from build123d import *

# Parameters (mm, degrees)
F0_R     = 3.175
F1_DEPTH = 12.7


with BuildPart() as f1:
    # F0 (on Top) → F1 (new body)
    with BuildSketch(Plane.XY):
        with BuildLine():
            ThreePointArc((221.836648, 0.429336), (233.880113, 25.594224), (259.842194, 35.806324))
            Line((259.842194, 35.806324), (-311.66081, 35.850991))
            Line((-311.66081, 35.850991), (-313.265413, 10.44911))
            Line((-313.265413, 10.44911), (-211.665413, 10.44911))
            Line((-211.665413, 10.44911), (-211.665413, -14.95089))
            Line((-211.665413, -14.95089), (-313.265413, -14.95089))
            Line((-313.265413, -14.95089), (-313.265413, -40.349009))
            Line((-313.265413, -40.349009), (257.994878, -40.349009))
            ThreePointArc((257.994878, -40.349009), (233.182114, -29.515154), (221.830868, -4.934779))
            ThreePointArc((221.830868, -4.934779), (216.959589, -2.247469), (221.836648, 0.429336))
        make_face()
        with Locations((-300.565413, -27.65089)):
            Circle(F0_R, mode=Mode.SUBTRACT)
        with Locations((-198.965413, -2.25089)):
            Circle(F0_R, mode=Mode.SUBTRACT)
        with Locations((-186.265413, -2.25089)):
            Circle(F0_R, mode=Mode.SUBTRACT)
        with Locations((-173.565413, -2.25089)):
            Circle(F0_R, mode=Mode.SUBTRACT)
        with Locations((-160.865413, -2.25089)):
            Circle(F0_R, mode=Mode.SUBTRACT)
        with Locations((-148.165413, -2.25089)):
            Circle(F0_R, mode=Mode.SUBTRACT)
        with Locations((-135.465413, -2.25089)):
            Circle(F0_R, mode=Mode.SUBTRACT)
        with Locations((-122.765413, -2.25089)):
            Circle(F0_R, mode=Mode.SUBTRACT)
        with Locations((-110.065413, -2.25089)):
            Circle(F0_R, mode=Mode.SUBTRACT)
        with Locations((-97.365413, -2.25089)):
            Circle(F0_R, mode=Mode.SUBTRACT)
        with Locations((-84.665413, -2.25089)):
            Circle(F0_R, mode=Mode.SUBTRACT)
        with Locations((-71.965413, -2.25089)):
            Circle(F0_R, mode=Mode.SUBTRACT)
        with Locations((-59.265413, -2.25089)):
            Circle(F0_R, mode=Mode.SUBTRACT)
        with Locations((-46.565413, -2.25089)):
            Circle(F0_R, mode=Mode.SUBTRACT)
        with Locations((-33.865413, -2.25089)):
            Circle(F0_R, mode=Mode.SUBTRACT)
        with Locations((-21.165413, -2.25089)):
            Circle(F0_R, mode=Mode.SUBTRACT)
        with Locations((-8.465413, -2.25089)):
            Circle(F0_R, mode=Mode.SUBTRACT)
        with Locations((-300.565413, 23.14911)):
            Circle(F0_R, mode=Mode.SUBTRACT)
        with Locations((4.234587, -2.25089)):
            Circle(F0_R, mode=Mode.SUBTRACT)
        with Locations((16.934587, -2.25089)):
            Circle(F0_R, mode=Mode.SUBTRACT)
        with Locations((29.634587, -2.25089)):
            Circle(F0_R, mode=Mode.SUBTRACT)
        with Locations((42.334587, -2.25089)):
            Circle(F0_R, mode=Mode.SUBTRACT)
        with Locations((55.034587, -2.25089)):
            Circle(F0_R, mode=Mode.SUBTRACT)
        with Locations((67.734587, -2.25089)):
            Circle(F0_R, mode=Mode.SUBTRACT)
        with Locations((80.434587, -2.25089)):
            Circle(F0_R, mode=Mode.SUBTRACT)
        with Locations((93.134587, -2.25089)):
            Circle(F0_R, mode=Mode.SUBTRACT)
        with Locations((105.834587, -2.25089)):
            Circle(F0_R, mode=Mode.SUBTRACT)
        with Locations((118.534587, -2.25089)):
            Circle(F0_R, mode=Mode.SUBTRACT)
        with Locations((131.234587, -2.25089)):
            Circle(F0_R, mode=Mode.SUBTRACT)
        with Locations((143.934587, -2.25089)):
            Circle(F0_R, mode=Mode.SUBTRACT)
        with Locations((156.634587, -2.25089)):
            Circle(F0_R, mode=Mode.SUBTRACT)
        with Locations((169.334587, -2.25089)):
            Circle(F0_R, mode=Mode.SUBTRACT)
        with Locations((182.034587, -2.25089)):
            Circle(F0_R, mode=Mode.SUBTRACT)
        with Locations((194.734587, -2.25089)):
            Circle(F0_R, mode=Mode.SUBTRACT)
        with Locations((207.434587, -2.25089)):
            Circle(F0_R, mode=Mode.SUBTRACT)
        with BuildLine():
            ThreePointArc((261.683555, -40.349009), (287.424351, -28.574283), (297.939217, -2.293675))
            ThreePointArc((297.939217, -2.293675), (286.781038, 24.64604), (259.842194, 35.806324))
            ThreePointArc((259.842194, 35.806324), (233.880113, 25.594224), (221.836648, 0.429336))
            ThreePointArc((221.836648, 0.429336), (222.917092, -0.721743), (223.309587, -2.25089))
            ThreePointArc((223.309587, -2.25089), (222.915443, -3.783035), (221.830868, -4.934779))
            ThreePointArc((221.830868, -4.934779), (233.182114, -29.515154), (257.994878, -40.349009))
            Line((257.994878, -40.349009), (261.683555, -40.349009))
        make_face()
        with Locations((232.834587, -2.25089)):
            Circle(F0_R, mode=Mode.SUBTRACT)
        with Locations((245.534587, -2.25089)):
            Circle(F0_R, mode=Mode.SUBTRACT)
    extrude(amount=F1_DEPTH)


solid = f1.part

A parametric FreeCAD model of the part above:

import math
import FreeCAD as App
import Part
import Sketcher
Q = App.Units.Quantity

doc = App.newDocument("Part")
body = doc.addObject("PartDesign::Body", "Body")

# Sketch on XY plane
sketch1 = doc.addObject("Sketcher::SketchObject", "Sketch")
body.addObject(sketch1)
sketch1.AttachmentSupport = (doc.XY_Plane, [""])
sketch1.MapMode = "FlatFace"
sketch1.addGeometry([
    Part.LineSegment(App.Vector(259.842194, 35.806324, 0), App.Vector(-311.66081, 35.850991, 0)),  # 0
    Part.LineSegment(App.Vector(-311.66081, 35.850991, 0), App.Vector(-313.265413, 10.44911, 0)),  # 1
    Part.LineSegment(App.Vector(-313.265413, 10.44911, 0), App.Vector(-211.665413, 10.44911, 0)),  # 2
    Part.LineSegment(App.Vector(-211.665413, 10.44911, 0), App.Vector(-211.665413, -14.95089, 0)),  # 3
    Part.LineSegment(App.Vector(-211.665413, -14.95089, 0), App.Vector(-313.265413, -14.95089, 0)),  # 4
    Part.LineSegment(App.Vector(-313.265413, -14.95089, 0), App.Vector(-313.265413, -40.349009, 0)),  # 5
    Part.LineSegment(App.Vector(-313.265413, -40.349009, 0), App.Vector(261.683555, -40.349009, 0)),  # 6
    Part.ArcOfCircle(Part.Circle(App.Vector(259.839215, -2.293674, 0), App.Vector(0, 0, 1), 38.100002), math.radians(-87.22535), math.radians(-0.000002)),  # 7
    Part.ArcOfCircle(Part.Circle(App.Vector(259.839217, -2.293676, 0), App.Vector(0, 0, 1), 38.1), math.radians(0.000001), math.radians(89.995524)),  # 8
    Part.Circle(App.Vector(-300.565413, -27.65089, 0), App.Vector(0, 0, 1), 3.175),  # 9
    Part.ArcOfCircle(Part.Circle(App.Vector(220.134587, -2.250891, 0), App.Vector(0, 0, 1), 3.175), math.radians(57.582672), math.radians(302.293852)),  # 10
    Part.ArcOfCircle(Part.Circle(App.Vector(220.134588, -2.25089, 0), App.Vector(0, 0, 1), 3.174999), math.radians(-0.000002), math.radians(57.582674)),  # 11
    Part.ArcOfCircle(Part.Circle(App.Vector(220.134588, -2.250891, 0), App.Vector(0, 0, 1), 3.174999), math.radians(-57.706152), math.radians(0.000025)),  # 12
    Part.Circle(App.Vector(-198.965413, -2.25089, 0), App.Vector(0, 0, 1), 3.175),  # 13
    Part.Circle(App.Vector(-186.265413, -2.25089, 0), App.Vector(0, 0, 1), 3.175),  # 14
    Part.Circle(App.Vector(-173.565413, -2.25089, 0), App.Vector(0, 0, 1), 3.175),  # 15
    Part.Circle(App.Vector(-160.865413, -2.25089, 0), App.Vector(0, 0, 1), 3.175),  # 16
    Part.Circle(App.Vector(-148.165413, -2.25089, 0), App.Vector(0, 0, 1), 3.175),  # 17
    Part.Circle(App.Vector(-135.465413, -2.25089, 0), App.Vector(0, 0, 1), 3.175),  # 18
    Part.Circle(App.Vector(-122.765413, -2.25089, 0), App.Vector(0, 0, 1), 3.175),  # 19
    Part.Circle(App.Vector(-110.065413, -2.25089, 0), App.Vector(0, 0, 1), 3.175),  # 20
    Part.Circle(App.Vector(-97.365413, -2.25089, 0), App.Vector(0, 0, 1), 3.175),  # 21
    Part.Circle(App.Vector(-84.665413, -2.25089, 0), App.Vector(0, 0, 1), 3.175),  # 22
    Part.Circle(App.Vector(-71.965413, -2.25089, 0), App.Vector(0, 0, 1), 3.175),  # 23
    Part.Circle(App.Vector(-59.265413, -2.25089, 0), App.Vector(0, 0, 1), 3.175),  # 24
    Part.Circle(App.Vector(-46.565413, -2.25089, 0), App.Vector(0, 0, 1), 3.175),  # 25
    Part.Circle(App.Vector(-33.865413, -2.25089, 0), App.Vector(0, 0, 1), 3.175),  # 26
    Part.Circle(App.Vector(-300.565413, 23.14911, 0), App.Vector(0, 0, 1), 3.175),  # 27
    Part.Circle(App.Vector(-21.165413, -2.25089, 0), App.Vector(0, 0, 1), 3.175),  # 28
    Part.Circle(App.Vector(-8.465413, -2.25089, 0), App.Vector(0, 0, 1), 3.175),  # 29
    Part.Circle(App.Vector(4.234587, -2.25089, 0), App.Vector(0, 0, 1), 3.175),  # 30
    Part.Circle(App.Vector(16.934587, -2.25089, 0), App.Vector(0, 0, 1), 3.175),  # 31
    Part.Circle(App.Vector(29.634587, -2.25089, 0), App.Vector(0, 0, 1), 3.175),  # 32
    Part.Circle(App.Vector(42.334587, -2.25089, 0), App.Vector(0, 0, 1), 3.175),  # 33
    Part.Circle(App.Vector(55.034587, -2.25089, 0), App.Vector(0, 0, 1), 3.175),  # 34
    Part.Circle(App.Vector(67.734587, -2.25089, 0), App.Vector(0, 0, 1), 3.175),  # 35
    Part.Circle(App.Vector(80.434587, -2.25089, 0), App.Vector(0, 0, 1), 3.175),  # 36
    Part.Circle(App.Vector(93.134587, -2.25089, 0), App.Vector(0, 0, 1), 3.175),  # 37
    Part.Circle(App.Vector(105.834587, -2.25089, 0), App.Vector(0, 0, 1), 3.175),  # 38
    Part.Circle(App.Vector(118.534587, -2.25089, 0), App.Vector(0, 0, 1), 3.175),  # 39
    Part.Circle(App.Vector(131.234587, -2.25089, 0), App.Vector(0, 0, 1), 3.175),  # 40
    Part.Circle(App.Vector(143.934587, -2.25089, 0), App.Vector(0, 0, 1), 3.175),  # 41
    Part.Circle(App.Vector(156.634587, -2.25089, 0), App.Vector(0, 0, 1), 3.175),  # 42
    Part.Circle(App.Vector(169.334587, -2.25089, 0), App.Vector(0, 0, 1), 3.175),  # 43
    Part.Circle(App.Vector(182.034587, -2.25089, 0), App.Vector(0, 0, 1), 3.175),  # 44
    Part.Circle(App.Vector(194.734587, -2.25089, 0), App.Vector(0, 0, 1), 3.175),  # 45
    Part.Circle(App.Vector(207.434587, -2.25089, 0), App.Vector(0, 0, 1), 3.175),  # 46
    Part.Circle(App.Vector(232.834587, -2.25089, 0), App.Vector(0, 0, 1), 3.175),  # 47
    Part.Circle(App.Vector(245.534587, -2.25089, 0), App.Vector(0, 0, 1), 3.175),  # 48
], False)
sketch1.addConstraint([
    Sketcher.Constraint("Coincident", 0, 2, 1, 1),
    Sketcher.Constraint("Coincident", 1, 2, 2, 1),
    Sketcher.Constraint("Coincident", 2, 2, 3, 1),
    Sketcher.Constraint("Coincident", 3, 2, 4, 1),
    Sketcher.Constraint("Coincident", 4, 2, 5, 1),
    Sketcher.Constraint("Coincident", 5, 2, 6, 1),
    Sketcher.Constraint("Coincident", 6, 2, 7, 1),
    Sketcher.Constraint("Tangent", 7, 2, 8, 1),
    Sketcher.Constraint("Tangent", 8, 2, 0, 1),
    Sketcher.Constraint("Tangent", 10, 1, 11, 2),
    Sketcher.Constraint("Tangent", 11, 1, 12, 2),
    Sketcher.Constraint("Tangent", 12, 1, 10, 2),
    Sketcher.Constraint("Horizontal", 2),
    Sketcher.Constraint("Vertical", 3),
    Sketcher.Constraint("Horizontal", 4),
    Sketcher.Constraint("Vertical", 5),
    Sketcher.Constraint("Horizontal", 6),
    Sketcher.Constraint("Equal", 7, 8),
    Sketcher.Constraint("Equal", 9, 10),
    Sketcher.Constraint("Equal", 12, 13),
    Sketcher.Constraint("Equal", 13, 14),
    Sketcher.Constraint("Equal", 14, 15),
    Sketcher.Constraint("Equal", 15, 16),
    Sketcher.Constraint("Equal", 16, 17),
    Sketcher.Constraint("Equal", 17, 18),
    Sketcher.Constraint("Equal", 18, 19),
    Sketcher.Constraint("Equal", 19, 20),
    Sketcher.Constraint("Equal", 20, 21),
    Sketcher.Constraint("Equal", 21, 22),
    Sketcher.Constraint("Equal", 22, 23),
    Sketcher.Constraint("Equal", 23, 24),
    Sketcher.Constraint("Equal", 24, 25),
    Sketcher.Constraint("Equal", 25, 26),
    Sketcher.Constraint("Equal", 26, 27),
    Sketcher.Constraint("Equal", 27, 28),
    Sketcher.Constraint("Equal", 28, 29),
    Sketcher.Constraint("Equal", 29, 30),
    Sketcher.Constraint("Equal", 30, 31),
    Sketcher.Constraint("Equal", 31, 32),
    Sketcher.Constraint("Equal", 32, 33),
    Sketcher.Constraint("Equal", 33, 34),
    Sketcher.Constraint("Equal", 34, 35),
    Sketcher.Constraint("Equal", 35, 36),
    Sketcher.Constraint("Equal", 36, 37),
    Sketcher.Constraint("Equal", 37, 38),
    Sketcher.Constraint("Equal", 38, 39),
    Sketcher.Constraint("Equal", 39, 40),
    Sketcher.Constraint("Equal", 40, 41),
    Sketcher.Constraint("Equal", 41, 42),
    Sketcher.Constraint("Equal", 42, 43),
    Sketcher.Constraint("Equal", 43, 44),
    Sketcher.Constraint("Equal", 44, 45),
    Sketcher.Constraint("Equal", 45, 46),
    Sketcher.Constraint("Equal", 46, 47),
    Sketcher.Constraint("Equal", 47, 48),
    Sketcher.Constraint("Horizontal", 12, 3, 13, 3),
    Sketcher.Constraint("Horizontal", 13, 3, 14, 3),
    Sketcher.Constraint("Horizontal", 14, 3, 15, 3),
    Sketcher.Constraint("Horizontal", 15, 3, 16, 3),
    Sketcher.Constraint("Horizontal", 16, 3, 17, 3),
    Sketcher.Constraint("Horizontal", 17, 3, 18, 3),
    Sketcher.Constraint("Horizontal", 18, 3, 19, 3),
    Sketcher.Constraint("Horizontal", 19, 3, 20, 3),
    Sketcher.Constraint("Horizontal", 20, 3, 21, 3),
    Sketcher.Constraint("Horizontal", 21, 3, 22, 3),
    Sketcher.Constraint("Horizontal", 22, 3, 23, 3),
    Sketcher.Constraint("Horizontal", 23, 3, 24, 3),
    Sketcher.Constraint("Horizontal", 24, 3, 25, 3),
    Sketcher.Constraint("Horizontal", 25, 3, 26, 3),
    Sketcher.Constraint("Horizontal", 26, 3, 28, 3),
    Sketcher.Constraint("Horizontal", 28, 3, 29, 3),
    Sketcher.Constraint("Horizontal", 29, 3, 30, 3),
    Sketcher.Constraint("Horizontal", 30, 3, 31, 3),
    Sketcher.Constraint("Horizontal", 31, 3, 32, 3),
    Sketcher.Constraint("Horizontal", 32, 3, 33, 3),
    Sketcher.Constraint("Horizontal", 33, 3, 34, 3),
    Sketcher.Constraint("Horizontal", 34, 3, 35, 3),
    Sketcher.Constraint("Horizontal", 35, 3, 36, 3),
    Sketcher.Constraint("Horizontal", 36, 3, 37, 3),
    Sketcher.Constraint("Horizontal", 37, 3, 38, 3),
    Sketcher.Constraint("Horizontal", 38, 3, 39, 3),
    Sketcher.Constraint("Horizontal", 39, 3, 40, 3),
    Sketcher.Constraint("Horizontal", 40, 3, 41, 3),
    Sketcher.Constraint("Horizontal", 41, 3, 42, 3),
    Sketcher.Constraint("Horizontal", 42, 3, 43, 3),
    Sketcher.Constraint("Horizontal", 43, 3, 44, 3),
    Sketcher.Constraint("Horizontal", 44, 3, 45, 3),
    Sketcher.Constraint("Horizontal", 45, 3, 46, 3),
    Sketcher.Constraint("Horizontal", 46, 3, 47, 3),
    Sketcher.Constraint("Horizontal", 47, 3, 48, 3),
    Sketcher.Constraint("Horizontal", 8, 3, 7, 2),
    Sketcher.Constraint("Horizontal", 48, 3, 11, 1),
    Sketcher.Constraint("Vertical", 9, 3, 27, 3),
    Sketcher.Constraint("Vertical", 1, 2, 4, 2),
    Sketcher.Constraint("Radius", 7, Q("1.5000001 in")),
    Sketcher.Constraint("Diameter", 9, Q("0.25 in")),
    Sketcher.Constraint("DistanceX", 2, 1, 2, 2, Q("4 in")),
    Sketcher.Constraint("DistanceY", 3, 2, 3, 1, Q("1 in")),
    Sketcher.Constraint("DistanceY", 9, 3, 10, 3, Q("1 in")),
    Sketcher.Constraint("DistanceX", 9, 3, 13, 3, Q("4 in")),
    Sketcher.Constraint("DistanceX", 14, 3, 10, 3, Q("16 in")),
    Sketcher.Constraint("DistanceX", 13, 3, 15, 3, Q("1 in")),
    Sketcher.Constraint("DistanceX", 14, 3, 16, 3, Q("1 in")),
    Sketcher.Constraint("DistanceX", 15, 3, 17, 3, Q("1 in")),
    Sketcher.Constraint("DistanceX", 16, 3, 18, 3, Q("1 in")),
    Sketcher.Constraint("DistanceX", 17, 3, 19, 3, Q("1 in")),
    Sketcher.Constraint("DistanceX", 18, 3, 20, 3, Q("1 in")),
    Sketcher.Constraint("DistanceX", 19, 3, 21, 3, Q("1 in")),
    Sketcher.Constraint("DistanceX", 20, 3, 22, 3, Q("1 in")),
    Sketcher.Constraint("DistanceX", 21, 3, 23, 3, Q("1 in")),
    Sketcher.Constraint("DistanceX", 22, 3, 24, 3, Q("1 in")),
    Sketcher.Constraint("DistanceX", 23, 3, 25, 3, Q("1 in")),
    Sketcher.Constraint("DistanceX", 24, 3, 26, 3, Q("1 in")),
    Sketcher.Constraint("DistanceY", 9, 3, 27, 3, Q("2 in")),
    Sketcher.Constraint("DistanceX", 25, 3, 28, 3, Q("1 in")),
    Sketcher.Constraint("DistanceX", 26, 3, 29, 3, Q("1 in")),
    Sketcher.Constraint("DistanceX", 28, 3, 30, 3, Q("1 in")),
    Sketcher.Constraint("DistanceX", 29, 3, 31, 3, Q("1 in")),
    Sketcher.Constraint("DistanceX", 30, 3, 32, 3, Q("1 in")),
    Sketcher.Constraint("DistanceX", 31, 3, 33, 3, Q("1 in")),
    Sketcher.Constraint("DistanceX", 32, 3, 34, 3, Q("1 in")),
    Sketcher.Constraint("DistanceX", 33, 3, 35, 3, Q("1 in")),
    Sketcher.Constraint("DistanceX", 34, 3, 36, 3, Q("1 in")),
    Sketcher.Constraint("DistanceX", 35, 3, 37, 3, Q("1 in")),
    Sketcher.Constraint("DistanceX", 36, 3, 38, 3, Q("1 in")),
    Sketcher.Constraint("DistanceX", 37, 3, 39, 3, Q("1 in")),
    Sketcher.Constraint("DistanceX", 38, 3, 40, 3, Q("1 in")),
    Sketcher.Constraint("DistanceX", 39, 3, 41, 3, Q("1 in")),
    Sketcher.Constraint("DistanceX", 40, 3, 42, 3, Q("1 in")),
    Sketcher.Constraint("DistanceX", 41, 3, 43, 3, Q("1 in")),
    Sketcher.Constraint("DistanceX", 42, 3, 44, 3, Q("1 in")),
    Sketcher.Constraint("DistanceX", 43, 3, 45, 3, Q("1 in")),
    Sketcher.Constraint("DistanceX", 44, 3, 46, 3, Q("1 in")),
    Sketcher.Constraint("DistanceX", 46, 3, 47, 3, Q("1 in")),
    Sketcher.Constraint("DistanceX", 12, 3, 48, 3, Q("1 in")),
    Sketcher.Constraint("DistanceX", 1, 2, 14, 3, Q("5 in")),
    Sketcher.Constraint("DistanceY", 5, 2, 0, 2, Q("3 in")),
    Sketcher.Constraint("DistanceX", 9, 3, 10, 3, Q("20.5 in")),
    Sketcher.Constraint("DistanceY", 1, 2, 27, 3, Q("0.5 in")),
    Sketcher.Constraint("DistanceX", 6, 1, 6, 2, Q("574.948968 mm")),
    Sketcher.Constraint("DistanceY", 5, 2, 5, 1, Q("25.398119 mm")),
    Sketcher.Constraint("Distance", 1, Q("25.452511 mm")),
    Sketcher.Constraint("DistanceY", 9, 3, -1, 1, Q("27.65089 mm")),
    Sketcher.Constraint("DistanceX", 0, 2, -1, 1, Q("311.66081 mm")),
    Sketcher.Constraint("DistanceY", 12, 1, -1, 1, Q("4.934779 mm")),
    Sketcher.Constraint("DistanceX", 9, 3, 7, 3, Q("560.404628 mm")),
    Sketcher.Constraint("DistanceX", 11, 3, 10, 1, Q("1.70206 mm")),
])
pad1 = doc.addObject("PartDesign::Pad", "Pad")
body.addObject(pad1)
pad1.Profile = sketch1
pad1.Length = Q("0.5 in")

doc.recompute()
